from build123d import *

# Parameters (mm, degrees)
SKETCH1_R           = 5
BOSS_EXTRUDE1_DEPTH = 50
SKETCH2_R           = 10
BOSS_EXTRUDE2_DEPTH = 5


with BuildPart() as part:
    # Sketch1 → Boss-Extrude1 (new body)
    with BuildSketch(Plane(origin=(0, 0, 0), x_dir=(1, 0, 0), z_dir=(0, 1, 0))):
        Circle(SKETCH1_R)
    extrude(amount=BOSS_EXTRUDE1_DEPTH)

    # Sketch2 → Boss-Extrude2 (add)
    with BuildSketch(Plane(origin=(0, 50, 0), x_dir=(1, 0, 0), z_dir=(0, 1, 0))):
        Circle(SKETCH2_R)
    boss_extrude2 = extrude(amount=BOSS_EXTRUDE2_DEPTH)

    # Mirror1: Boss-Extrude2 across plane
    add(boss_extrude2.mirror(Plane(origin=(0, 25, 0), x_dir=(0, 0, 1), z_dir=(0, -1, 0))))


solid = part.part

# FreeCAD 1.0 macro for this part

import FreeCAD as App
import Part
import Sketcher
from FreeCAD import Vector
Q = App.Units.Quantity

doc = App.newDocument("Part")
body = doc.addObject("PartDesign::Body", "Body")

# Sketch on XZ plane
sketch1 = doc.addObject("Sketcher::SketchObject", "Sketch")
body.addObject(sketch1)
sketch1.AttachmentSupport = (doc.XZ_Plane, [""])
sketch1.MapMode = "FlatFace"
sketch1.addGeometry(Part.Circle(Vector(0, 0, 0), Vector(0, 0, 1), 5), False)
sketch1.addConstraint([
    Sketcher.Constraint("Coincident", 0, 3, -1, 1),
    Sketcher.Constraint("Diameter", 0, Q("10 mm")),
])
pad1 = doc.addObject("PartDesign::Pad", "Pad")
body.addObject(pad1)
pad1.Profile = sketch1
pad1.Length = 50
pad1.Reversed = True

# Sketch on XZ plane
sketch2 = doc.addObject("Sketcher::SketchObject", "Sketch001")
body.addObject(sketch2)
sketch2.AttachmentSupport = (doc.XZ_Plane, [""])
sketch2.MapMode = "FlatFace"
sketch2.AttachmentOffset = App.Placement(Vector(0, 0, -50), App.Rotation())
sketch2.addGeometry(Part.Circle(Vector(0, 0, 0), Vector(0, 0, 1), 10), False)
sketch2.addConstraint([
    Sketcher.Constraint("Coincident", 0, 3, -1, 1),
    Sketcher.Constraint("Diameter", 0, Q("20 mm")),
])
pad2 = doc.addObject("PartDesign::Pad", "Pad001")
body.addObject(pad2)
pad2.Profile = sketch2
pad2.Length = 5
pad2.Reversed = True
doc.recompute()

datumplane = doc.addObject("PartDesign::Plane", "DatumPlane")
body.addObject(datumplane)
datumplane.AttachmentSupport = (doc.XZ_Plane, [""])
datumplane.MapMode = "FlatFace"
datumplane.AttachmentOffset = App.Placement(Vector(0, 0, -25), App.Rotation())
mirrored = doc.addObject("PartDesign::Mirrored", "Mirrored")
body.addObject(mirrored)
mirrored.Originals = [pad2]
mirrored.MirrorPlane = (datumplane, [""])
body.Tip = mirrored

doc.recompute()
